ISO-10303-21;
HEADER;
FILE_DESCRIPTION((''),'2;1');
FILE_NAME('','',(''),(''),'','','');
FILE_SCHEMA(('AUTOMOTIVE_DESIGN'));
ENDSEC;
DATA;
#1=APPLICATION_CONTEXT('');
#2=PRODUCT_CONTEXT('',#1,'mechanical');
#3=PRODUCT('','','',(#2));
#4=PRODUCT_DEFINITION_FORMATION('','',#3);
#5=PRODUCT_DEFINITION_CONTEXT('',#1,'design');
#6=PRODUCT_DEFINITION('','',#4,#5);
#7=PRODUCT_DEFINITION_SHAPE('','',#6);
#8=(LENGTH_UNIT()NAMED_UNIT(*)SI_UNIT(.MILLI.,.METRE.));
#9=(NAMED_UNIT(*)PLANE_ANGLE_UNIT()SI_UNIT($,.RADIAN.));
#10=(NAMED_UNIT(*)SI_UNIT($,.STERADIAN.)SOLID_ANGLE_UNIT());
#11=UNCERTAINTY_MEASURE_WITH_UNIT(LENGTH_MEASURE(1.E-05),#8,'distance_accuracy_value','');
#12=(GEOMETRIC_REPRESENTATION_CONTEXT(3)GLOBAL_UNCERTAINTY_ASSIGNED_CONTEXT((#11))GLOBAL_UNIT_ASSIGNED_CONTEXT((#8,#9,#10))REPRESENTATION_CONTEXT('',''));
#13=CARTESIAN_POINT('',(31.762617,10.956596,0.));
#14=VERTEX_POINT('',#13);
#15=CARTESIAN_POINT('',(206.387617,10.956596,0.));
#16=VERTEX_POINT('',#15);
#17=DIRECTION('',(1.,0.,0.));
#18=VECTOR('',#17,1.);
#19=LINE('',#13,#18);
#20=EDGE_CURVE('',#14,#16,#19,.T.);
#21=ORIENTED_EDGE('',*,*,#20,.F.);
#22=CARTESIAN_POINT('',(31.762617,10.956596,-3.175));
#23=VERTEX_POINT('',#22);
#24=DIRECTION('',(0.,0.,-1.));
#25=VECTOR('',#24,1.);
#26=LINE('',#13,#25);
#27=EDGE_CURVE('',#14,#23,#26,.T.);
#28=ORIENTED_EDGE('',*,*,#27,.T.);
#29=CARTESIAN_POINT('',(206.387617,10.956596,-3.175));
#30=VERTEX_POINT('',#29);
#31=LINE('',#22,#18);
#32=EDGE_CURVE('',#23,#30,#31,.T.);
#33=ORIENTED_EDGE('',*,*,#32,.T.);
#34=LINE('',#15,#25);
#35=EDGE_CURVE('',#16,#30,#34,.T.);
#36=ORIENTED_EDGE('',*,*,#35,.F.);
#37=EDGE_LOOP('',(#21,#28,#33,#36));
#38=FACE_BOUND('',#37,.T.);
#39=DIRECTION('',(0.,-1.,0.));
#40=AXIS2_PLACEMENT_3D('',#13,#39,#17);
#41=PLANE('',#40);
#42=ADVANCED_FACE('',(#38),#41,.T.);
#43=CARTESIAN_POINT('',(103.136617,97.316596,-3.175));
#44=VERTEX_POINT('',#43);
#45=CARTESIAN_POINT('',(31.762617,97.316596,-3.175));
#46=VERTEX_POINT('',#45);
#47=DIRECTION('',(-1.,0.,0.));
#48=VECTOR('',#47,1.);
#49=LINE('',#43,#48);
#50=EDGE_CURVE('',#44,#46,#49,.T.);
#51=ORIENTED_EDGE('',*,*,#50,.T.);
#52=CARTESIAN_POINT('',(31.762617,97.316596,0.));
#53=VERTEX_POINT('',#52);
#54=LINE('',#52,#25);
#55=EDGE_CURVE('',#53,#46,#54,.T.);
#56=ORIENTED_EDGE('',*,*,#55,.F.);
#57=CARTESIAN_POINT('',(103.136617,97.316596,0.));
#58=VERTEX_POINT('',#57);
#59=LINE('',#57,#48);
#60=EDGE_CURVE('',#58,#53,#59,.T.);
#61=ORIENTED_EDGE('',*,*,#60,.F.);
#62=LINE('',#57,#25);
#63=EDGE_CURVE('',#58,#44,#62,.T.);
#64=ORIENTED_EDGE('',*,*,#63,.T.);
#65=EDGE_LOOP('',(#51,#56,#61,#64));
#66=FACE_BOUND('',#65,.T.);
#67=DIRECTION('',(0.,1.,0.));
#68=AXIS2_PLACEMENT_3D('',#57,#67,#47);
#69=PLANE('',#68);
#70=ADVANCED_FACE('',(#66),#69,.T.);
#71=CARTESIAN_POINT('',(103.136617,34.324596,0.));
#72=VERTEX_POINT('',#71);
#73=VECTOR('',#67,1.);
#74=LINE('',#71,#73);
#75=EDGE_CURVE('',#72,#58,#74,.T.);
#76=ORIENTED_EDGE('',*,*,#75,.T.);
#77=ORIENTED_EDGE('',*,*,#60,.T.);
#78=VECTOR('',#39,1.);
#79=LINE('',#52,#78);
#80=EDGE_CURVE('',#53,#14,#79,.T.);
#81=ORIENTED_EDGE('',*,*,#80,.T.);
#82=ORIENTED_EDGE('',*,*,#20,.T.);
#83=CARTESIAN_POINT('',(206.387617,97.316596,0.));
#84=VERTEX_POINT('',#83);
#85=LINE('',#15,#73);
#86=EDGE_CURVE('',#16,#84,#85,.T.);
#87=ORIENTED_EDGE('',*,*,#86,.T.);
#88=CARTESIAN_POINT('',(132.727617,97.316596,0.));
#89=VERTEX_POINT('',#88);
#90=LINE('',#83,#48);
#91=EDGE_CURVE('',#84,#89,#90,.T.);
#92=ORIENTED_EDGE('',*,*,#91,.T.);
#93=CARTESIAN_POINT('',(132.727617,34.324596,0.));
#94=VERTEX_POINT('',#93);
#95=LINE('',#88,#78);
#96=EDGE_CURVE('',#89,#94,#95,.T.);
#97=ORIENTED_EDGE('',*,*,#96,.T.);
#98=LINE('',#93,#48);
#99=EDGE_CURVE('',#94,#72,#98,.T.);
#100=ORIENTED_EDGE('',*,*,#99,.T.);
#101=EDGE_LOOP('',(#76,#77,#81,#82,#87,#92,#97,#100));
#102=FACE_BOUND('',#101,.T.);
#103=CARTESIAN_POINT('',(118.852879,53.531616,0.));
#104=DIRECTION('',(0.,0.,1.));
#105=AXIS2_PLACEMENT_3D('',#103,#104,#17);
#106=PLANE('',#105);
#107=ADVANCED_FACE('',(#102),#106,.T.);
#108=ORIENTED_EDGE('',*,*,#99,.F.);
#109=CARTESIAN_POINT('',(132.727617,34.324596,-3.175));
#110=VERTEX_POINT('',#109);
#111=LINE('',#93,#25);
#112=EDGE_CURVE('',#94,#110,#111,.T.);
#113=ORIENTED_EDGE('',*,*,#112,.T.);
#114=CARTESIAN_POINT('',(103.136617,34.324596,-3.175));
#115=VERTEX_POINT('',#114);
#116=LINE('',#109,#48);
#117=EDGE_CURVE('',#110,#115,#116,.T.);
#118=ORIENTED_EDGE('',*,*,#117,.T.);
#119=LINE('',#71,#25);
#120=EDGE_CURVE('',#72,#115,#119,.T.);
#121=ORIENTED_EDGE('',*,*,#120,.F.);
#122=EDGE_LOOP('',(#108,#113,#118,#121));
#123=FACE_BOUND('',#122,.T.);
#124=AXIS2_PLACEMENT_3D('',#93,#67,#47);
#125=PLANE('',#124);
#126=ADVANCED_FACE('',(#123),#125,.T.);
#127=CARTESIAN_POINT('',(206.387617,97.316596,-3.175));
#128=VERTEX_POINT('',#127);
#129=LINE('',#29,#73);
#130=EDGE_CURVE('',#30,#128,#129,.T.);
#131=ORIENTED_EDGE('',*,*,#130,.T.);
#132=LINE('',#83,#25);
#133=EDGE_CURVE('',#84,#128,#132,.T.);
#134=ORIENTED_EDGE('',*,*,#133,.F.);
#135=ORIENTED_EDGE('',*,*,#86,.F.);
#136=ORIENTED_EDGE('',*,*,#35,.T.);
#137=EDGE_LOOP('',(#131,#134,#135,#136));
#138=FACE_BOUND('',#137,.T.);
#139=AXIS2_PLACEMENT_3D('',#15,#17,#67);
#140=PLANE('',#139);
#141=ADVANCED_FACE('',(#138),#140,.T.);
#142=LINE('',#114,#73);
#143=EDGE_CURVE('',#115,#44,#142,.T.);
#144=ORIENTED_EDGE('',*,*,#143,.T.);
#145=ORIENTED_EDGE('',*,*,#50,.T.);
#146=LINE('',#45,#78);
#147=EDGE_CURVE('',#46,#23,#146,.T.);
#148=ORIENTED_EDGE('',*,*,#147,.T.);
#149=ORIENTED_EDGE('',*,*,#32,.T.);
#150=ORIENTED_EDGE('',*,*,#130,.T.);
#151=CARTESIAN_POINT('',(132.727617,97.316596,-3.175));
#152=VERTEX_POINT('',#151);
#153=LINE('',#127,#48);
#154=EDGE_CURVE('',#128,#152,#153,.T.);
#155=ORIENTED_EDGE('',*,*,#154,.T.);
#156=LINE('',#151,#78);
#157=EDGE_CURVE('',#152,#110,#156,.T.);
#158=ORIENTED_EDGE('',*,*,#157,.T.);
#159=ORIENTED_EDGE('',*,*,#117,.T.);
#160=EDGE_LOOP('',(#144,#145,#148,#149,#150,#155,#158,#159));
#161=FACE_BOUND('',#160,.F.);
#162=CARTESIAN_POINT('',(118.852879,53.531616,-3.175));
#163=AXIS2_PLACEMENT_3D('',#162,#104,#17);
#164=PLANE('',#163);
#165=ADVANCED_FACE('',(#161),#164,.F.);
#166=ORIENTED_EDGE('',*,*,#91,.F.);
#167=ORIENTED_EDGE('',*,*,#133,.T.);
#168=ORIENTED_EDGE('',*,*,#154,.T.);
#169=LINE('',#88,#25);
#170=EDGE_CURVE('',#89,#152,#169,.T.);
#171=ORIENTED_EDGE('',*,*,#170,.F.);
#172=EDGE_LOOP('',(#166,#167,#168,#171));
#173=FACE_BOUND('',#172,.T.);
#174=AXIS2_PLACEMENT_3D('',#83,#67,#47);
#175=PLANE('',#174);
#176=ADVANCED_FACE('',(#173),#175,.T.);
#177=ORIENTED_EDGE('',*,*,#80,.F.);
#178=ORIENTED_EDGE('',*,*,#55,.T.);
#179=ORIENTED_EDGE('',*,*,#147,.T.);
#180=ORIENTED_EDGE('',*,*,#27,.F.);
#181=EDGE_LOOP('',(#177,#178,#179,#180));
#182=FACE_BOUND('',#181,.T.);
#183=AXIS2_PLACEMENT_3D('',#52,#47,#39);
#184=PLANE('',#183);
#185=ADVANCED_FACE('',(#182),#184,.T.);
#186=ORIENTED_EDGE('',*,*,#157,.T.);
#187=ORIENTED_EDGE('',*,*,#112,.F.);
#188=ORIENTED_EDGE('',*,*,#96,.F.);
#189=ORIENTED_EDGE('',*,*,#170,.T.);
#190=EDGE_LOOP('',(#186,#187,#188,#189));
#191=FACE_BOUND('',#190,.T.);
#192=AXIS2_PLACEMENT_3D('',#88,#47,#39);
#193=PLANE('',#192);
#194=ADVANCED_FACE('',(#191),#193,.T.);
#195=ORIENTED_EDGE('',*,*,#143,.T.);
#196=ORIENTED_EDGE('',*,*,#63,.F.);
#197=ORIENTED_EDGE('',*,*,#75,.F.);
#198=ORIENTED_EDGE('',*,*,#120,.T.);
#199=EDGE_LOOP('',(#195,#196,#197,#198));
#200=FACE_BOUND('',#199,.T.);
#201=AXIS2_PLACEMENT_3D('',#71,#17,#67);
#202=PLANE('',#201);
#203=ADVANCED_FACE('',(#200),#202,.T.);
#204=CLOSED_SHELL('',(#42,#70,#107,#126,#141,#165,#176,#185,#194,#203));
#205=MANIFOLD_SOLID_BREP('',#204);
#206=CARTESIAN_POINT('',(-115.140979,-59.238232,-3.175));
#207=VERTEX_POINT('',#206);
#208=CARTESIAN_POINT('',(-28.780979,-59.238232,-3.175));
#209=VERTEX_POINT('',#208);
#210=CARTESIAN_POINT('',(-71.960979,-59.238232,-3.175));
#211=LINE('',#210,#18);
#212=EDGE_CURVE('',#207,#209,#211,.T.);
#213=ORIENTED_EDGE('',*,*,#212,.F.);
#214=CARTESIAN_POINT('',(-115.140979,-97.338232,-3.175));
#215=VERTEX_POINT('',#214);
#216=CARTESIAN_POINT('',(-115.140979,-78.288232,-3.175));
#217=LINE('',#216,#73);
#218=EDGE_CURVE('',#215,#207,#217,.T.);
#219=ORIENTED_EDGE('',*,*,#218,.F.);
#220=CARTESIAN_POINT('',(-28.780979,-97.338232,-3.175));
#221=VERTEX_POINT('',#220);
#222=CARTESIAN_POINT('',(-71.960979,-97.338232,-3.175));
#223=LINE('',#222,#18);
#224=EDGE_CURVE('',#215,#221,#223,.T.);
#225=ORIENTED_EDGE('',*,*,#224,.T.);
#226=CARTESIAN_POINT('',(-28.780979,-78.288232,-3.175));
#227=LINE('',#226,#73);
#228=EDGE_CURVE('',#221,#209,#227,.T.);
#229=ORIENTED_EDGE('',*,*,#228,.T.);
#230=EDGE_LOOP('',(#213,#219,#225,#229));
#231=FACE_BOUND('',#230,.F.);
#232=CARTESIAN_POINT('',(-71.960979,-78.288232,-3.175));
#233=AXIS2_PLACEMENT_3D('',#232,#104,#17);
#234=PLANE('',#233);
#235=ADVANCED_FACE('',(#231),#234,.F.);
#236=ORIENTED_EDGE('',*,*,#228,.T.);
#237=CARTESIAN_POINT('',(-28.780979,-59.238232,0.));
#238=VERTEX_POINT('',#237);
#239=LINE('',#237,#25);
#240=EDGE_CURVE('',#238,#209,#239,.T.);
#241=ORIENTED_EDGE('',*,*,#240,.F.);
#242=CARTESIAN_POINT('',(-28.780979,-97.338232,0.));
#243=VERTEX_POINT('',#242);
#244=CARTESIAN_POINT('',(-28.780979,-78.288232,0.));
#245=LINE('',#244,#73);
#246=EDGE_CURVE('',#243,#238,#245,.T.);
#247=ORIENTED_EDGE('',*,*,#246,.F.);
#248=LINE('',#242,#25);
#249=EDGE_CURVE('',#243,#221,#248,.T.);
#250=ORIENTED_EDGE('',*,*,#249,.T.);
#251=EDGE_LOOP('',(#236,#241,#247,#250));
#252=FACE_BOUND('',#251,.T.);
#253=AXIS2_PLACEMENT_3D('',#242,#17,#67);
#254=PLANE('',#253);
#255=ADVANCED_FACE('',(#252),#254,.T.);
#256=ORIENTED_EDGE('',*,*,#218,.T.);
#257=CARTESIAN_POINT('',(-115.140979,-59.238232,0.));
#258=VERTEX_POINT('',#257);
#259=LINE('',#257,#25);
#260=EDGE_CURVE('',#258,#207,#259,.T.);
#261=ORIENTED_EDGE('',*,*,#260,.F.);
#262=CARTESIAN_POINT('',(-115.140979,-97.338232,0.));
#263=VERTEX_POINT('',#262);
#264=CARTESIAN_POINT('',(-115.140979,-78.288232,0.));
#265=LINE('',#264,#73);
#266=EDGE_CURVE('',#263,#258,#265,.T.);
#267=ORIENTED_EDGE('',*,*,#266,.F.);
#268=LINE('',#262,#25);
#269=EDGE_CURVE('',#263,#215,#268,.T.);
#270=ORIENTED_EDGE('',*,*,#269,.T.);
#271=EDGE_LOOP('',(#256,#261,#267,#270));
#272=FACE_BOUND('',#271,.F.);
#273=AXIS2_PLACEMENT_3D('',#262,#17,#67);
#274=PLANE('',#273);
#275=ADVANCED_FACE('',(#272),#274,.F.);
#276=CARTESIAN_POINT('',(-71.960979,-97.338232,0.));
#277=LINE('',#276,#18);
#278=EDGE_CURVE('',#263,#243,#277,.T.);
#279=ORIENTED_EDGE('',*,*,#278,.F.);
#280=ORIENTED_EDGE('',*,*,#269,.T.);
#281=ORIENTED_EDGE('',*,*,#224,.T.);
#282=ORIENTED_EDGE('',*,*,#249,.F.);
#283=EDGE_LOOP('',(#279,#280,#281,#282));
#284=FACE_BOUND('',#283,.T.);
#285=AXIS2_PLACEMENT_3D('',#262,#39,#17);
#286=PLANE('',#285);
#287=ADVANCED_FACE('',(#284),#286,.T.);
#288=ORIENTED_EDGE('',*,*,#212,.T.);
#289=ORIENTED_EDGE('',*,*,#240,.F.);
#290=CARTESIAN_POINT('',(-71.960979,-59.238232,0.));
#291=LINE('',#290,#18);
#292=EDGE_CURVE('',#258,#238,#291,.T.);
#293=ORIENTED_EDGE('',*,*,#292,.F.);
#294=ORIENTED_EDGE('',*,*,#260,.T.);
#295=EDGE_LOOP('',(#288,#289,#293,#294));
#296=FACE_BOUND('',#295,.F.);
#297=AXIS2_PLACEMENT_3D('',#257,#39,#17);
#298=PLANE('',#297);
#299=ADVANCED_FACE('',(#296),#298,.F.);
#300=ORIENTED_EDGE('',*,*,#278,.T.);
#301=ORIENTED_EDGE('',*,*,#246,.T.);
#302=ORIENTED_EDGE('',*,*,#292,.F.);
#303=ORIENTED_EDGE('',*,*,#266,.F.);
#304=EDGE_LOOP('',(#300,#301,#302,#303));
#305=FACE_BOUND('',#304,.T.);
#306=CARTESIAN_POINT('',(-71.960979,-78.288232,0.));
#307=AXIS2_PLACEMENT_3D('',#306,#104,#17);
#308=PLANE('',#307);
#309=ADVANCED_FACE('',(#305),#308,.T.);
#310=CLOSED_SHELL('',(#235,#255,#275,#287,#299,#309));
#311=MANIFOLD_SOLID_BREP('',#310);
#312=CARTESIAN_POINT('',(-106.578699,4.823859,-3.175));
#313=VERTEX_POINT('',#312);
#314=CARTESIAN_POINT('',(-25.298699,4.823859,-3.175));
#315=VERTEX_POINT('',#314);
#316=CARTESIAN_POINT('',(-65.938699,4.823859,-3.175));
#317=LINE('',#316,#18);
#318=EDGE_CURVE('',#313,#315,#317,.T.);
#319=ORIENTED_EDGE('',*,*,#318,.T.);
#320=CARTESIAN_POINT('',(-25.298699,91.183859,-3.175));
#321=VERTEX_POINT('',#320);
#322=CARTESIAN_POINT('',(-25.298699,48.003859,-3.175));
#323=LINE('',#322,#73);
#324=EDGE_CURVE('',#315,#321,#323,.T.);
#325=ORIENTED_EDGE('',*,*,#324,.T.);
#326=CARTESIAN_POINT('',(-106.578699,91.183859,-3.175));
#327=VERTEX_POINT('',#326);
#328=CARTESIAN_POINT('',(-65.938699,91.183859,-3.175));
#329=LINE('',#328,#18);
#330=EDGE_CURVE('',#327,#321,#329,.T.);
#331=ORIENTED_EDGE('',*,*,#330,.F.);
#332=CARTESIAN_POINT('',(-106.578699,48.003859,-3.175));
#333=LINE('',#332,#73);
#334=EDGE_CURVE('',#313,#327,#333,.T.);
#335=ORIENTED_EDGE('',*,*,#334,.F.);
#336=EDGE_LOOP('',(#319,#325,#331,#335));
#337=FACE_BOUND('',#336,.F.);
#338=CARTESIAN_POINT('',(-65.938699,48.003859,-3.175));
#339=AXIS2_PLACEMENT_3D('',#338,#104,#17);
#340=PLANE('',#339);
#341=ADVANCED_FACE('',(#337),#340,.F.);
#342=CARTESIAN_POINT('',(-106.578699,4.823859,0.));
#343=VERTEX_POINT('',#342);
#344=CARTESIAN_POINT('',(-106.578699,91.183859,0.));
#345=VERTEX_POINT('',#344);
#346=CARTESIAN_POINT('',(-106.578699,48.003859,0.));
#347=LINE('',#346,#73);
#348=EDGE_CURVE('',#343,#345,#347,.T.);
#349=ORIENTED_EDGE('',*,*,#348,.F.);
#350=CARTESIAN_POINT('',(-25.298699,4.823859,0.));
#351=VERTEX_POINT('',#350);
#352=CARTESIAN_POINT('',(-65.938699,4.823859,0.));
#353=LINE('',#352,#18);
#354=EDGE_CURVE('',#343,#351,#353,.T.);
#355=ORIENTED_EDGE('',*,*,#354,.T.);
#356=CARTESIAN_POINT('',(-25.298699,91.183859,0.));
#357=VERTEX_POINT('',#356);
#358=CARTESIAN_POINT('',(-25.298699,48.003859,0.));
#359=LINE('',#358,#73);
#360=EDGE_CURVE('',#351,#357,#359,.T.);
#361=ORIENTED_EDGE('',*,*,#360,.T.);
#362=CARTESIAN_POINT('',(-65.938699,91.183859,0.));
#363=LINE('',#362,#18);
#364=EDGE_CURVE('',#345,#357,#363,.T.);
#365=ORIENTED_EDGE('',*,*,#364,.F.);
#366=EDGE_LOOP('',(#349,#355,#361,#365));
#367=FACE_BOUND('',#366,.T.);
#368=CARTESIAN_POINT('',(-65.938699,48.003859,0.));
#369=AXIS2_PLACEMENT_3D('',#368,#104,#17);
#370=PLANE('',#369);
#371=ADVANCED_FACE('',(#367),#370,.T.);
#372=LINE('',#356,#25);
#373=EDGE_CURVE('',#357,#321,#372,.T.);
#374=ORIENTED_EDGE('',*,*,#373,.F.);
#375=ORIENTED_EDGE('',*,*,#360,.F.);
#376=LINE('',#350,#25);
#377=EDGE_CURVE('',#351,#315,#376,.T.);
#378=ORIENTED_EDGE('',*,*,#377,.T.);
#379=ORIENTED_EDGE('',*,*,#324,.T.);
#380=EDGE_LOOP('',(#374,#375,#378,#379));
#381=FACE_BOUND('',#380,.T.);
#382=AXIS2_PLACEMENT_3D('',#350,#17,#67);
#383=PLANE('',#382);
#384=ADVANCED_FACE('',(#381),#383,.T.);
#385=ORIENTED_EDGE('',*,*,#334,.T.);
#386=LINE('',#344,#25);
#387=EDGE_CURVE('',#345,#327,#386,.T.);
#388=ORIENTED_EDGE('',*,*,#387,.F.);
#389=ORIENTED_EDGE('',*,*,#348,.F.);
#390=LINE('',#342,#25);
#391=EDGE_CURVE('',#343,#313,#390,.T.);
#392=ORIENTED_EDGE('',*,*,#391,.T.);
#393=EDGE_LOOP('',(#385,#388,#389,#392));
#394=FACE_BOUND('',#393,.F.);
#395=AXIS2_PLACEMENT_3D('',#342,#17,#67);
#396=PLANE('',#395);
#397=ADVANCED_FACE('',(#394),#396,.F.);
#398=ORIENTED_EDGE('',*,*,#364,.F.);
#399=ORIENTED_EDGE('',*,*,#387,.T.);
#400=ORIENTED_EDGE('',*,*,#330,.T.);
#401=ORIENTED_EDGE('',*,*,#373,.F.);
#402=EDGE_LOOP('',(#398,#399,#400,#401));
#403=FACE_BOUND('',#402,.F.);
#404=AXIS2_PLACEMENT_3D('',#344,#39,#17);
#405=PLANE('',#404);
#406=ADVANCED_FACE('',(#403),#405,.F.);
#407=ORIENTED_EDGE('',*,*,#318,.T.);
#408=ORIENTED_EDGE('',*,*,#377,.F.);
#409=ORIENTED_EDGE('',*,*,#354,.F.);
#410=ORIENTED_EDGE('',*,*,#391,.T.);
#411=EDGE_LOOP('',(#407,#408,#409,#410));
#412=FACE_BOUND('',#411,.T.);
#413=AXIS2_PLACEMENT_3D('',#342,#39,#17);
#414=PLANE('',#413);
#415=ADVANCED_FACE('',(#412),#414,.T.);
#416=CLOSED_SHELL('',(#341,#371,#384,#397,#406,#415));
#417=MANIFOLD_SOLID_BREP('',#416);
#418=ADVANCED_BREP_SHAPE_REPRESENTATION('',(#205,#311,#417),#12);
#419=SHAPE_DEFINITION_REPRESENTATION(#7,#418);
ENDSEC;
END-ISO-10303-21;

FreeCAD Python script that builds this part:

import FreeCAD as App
import Part
import Sketcher
Q = App.Units.Quantity


def add_polygon(sketch, points):
    """Adds a closed chain of lines whose ends are joined by coincident constraints."""
    first, n = sketch.GeometryCount, len(points)
    for a, b in zip(points, points[1:] + points[:1]):
        sketch.addGeometry(Part.LineSegment(App.Vector(*a, 0), App.Vector(*b, 0)), False)
    for i in range(n):
        sketch.addConstraint(Sketcher.Constraint("Coincident", first + i, 2, first + (i + 1) % n, 1))

doc = App.newDocument("Part")
params = doc.addObject("Spreadsheet::Sheet", "Params")
for row, (alias, value) in enumerate([
    ("sketch1_width", "3.2 in"),
    ("sketch1_height", "3.4 in"),
    ("pad1_length", "0.125 in"),
    ("sketch2_width", "3.4 in"),
    ("sketch2_height", "1.5 in"),
    ("pad2_length", "0.125 in"),
    ("sketch3_width", "2.9 in"),
    ("sketch3_height", "3.4 in"),
    ("sketch3_width2", "2.81 in"),
    ("sketch3_height2", "2.48 in"),
    ("sketch3_width3", "6.875 in"),
    ("pad3_length", "0.125 in"),
], start=1):
    params.set(f"A{row}", alias)
    params.set(f"B{row}", "=" + value)
    params.setAlias(f"B{row}", alias)

body = doc.addObject("PartDesign::Body", "Body")

sketch1 = doc.addObject("Sketcher::SketchObject", "Sketch")
body.addObject(sketch1)
sketch1.AttachmentSupport = (doc.XY_Plane, [""])
sketch1.MapMode = "FlatFace"
add_polygon(sketch1, [(-107, 91), (-107, 5), (-25, 5), (-25, 91)])
sketch1.addConstraint(Sketcher.Constraint("Vertical", 0))
sketch1.addConstraint(Sketcher.Constraint("Horizontal", 1))
sketch1.addConstraint(Sketcher.Constraint("Vertical", 2))
sketch1.addConstraint(Sketcher.Constraint("Horizontal", 3))
sketch1.addConstraint(Sketcher.Constraint("DistanceX", 1, 1, 1, 2, Q("3.2 in")))
sketch1.addConstraint(Sketcher.Constraint("DistanceY", 0, 2, 0, 1, Q("3.4 in")))
sketch1.addConstraint(Sketcher.Constraint("DistanceX", 0, 2, -1, 1, Q("106.578699 mm")))
sketch1.addConstraint(Sketcher.Constraint("DistanceY", -1, 1, 0, 2, Q("4.823859 mm")))
sketch1.setExpression("Constraints[8]", "Params.sketch1_width")
sketch1.setExpression("Constraints[9]", "Params.sketch1_height")
pad1 = doc.addObject("PartDesign::Pad", "Pad")
body.addObject(pad1)
pad1.Profile = sketch1
pad1.setExpression("Length", "Params.pad1_length")
pad1.Reversed = True
body2 = doc.addObject("PartDesign::Body", "Body001")

sketch2 = doc.addObject("Sketcher::SketchObject", "Sketch001")
body2.addObject(sketch2)
sketch2.AttachmentSupport = (doc.getObject("XY_Plane001"), [""])
sketch2.MapMode = "FlatFace"
add_polygon(sketch2, [(-115, -59), (-115, -97), (-29, -97), (-29, -59)])
sketch2.addConstraint(Sketcher.Constraint("Vertical", 0))
sketch2.addConstraint(Sketcher.Constraint("Horizontal", 1))
sketch2.addConstraint(Sketcher.Constraint("Vertical", 2))
sketch2.addConstraint(Sketcher.Constraint("Horizontal", 3))
sketch2.addConstraint(Sketcher.Constraint("DistanceX", 1, 1, 1, 2, Q("3.4 in")))
sketch2.addConstraint(Sketcher.Constraint("DistanceY", 0, 2, 0, 1, Q("1.5 in")))
sketch2.addConstraint(Sketcher.Constraint("DistanceX", 0, 2, -1, 1, Q("115.140979 mm")))
sketch2.addConstraint(Sketcher.Constraint("DistanceY", 0, 2, -1, 1, Q("97.338232 mm")))
sketch2.setExpression("Constraints[8]", "Params.sketch2_width")
sketch2.setExpression("Constraints[9]", "Params.sketch2_height")
pad2 = doc.addObject("PartDesign::Pad", "Pad001")
body2.addObject(pad2)
pad2.Profile = sketch2
pad2.setExpression("Length", "Params.pad2_length")
pad2.Reversed = True
body3 = doc.addObject("PartDesign::Body", "Body002")

sketch3 = doc.addObject("Sketcher::SketchObject", "Sketch002")
body3.addObject(sketch3)
sketch3.AttachmentSupport = (doc.getObject("XY_Plane002"), [""])
sketch3.MapMode = "FlatFace"
add_polygon(sketch3, [(103, 97), (32, 97), (32, 11), (206, 11), (206, 97), (133, 97), (133, 34), (103, 34)])
sketch3.addConstraint(Sketcher.Constraint("Horizontal", 0))
sketch3.addConstraint(Sketcher.Constraint("Vertical", 1))
sketch3.addConstraint(Sketcher.Constraint("Horizontal", 2))
sketch3.addConstraint(Sketcher.Constraint("Vertical", 3))
sketch3.addConstraint(Sketcher.Constraint("Horizontal", 4))
sketch3.addConstraint(Sketcher.Constraint("Vertical", 5))
sketch3.addConstraint(Sketcher.Constraint("Horizontal", 6))
sketch3.addConstraint(Sketcher.Constraint("Vertical", 7))
sketch3.addConstraint(Sketcher.Constraint("Horizontal", 0, 2, 3, 2))
sketch3.addConstraint(Sketcher.Constraint("DistanceX", 4, 2, 4, 1, Q("2.9 in")))
sketch3.addConstraint(Sketcher.Constraint("DistanceY", 1, 2, 1, 1, Q("3.4 in")))
sketch3.addConstraint(Sketcher.Constraint("DistanceX", 0, 2, 0, 1, Q("2.81 in")))
sketch3.addConstraint(Sketcher.Constraint("DistanceY", 5, 2, 5, 1, Q("2.48 in")))
sketch3.addConstraint(Sketcher.Constraint("DistanceX", 2, 1, 2, 2, Q("6.875 in")))
sketch3.addConstraint(Sketcher.Constraint("DistanceX", -1, 1, 0, 2, Q("31.762617 mm")))
sketch3.addConstraint(Sketcher.Constraint("DistanceY", -1, 1, 0, 2, Q("97.316596 mm")))
sketch3.setExpression("Constraints[17]", "Params.sketch3_width")
sketch3.setExpression("Constraints[18]", "Params.sketch3_height")
sketch3.setExpression("Constraints[19]", "Params.sketch3_width2")
sketch3.setExpression("Constraints[20]", "Params.sketch3_height2")
sketch3.setExpression("Constraints[21]", "Params.sketch3_width3")
pad3 = doc.addObject("PartDesign::Pad", "Pad002")
body3.addObject(pad3)
pad3.Profile = sketch3
pad3.setExpression("Length", "Params.pad3_length")
pad3.Reversed = True

doc.recompute()
